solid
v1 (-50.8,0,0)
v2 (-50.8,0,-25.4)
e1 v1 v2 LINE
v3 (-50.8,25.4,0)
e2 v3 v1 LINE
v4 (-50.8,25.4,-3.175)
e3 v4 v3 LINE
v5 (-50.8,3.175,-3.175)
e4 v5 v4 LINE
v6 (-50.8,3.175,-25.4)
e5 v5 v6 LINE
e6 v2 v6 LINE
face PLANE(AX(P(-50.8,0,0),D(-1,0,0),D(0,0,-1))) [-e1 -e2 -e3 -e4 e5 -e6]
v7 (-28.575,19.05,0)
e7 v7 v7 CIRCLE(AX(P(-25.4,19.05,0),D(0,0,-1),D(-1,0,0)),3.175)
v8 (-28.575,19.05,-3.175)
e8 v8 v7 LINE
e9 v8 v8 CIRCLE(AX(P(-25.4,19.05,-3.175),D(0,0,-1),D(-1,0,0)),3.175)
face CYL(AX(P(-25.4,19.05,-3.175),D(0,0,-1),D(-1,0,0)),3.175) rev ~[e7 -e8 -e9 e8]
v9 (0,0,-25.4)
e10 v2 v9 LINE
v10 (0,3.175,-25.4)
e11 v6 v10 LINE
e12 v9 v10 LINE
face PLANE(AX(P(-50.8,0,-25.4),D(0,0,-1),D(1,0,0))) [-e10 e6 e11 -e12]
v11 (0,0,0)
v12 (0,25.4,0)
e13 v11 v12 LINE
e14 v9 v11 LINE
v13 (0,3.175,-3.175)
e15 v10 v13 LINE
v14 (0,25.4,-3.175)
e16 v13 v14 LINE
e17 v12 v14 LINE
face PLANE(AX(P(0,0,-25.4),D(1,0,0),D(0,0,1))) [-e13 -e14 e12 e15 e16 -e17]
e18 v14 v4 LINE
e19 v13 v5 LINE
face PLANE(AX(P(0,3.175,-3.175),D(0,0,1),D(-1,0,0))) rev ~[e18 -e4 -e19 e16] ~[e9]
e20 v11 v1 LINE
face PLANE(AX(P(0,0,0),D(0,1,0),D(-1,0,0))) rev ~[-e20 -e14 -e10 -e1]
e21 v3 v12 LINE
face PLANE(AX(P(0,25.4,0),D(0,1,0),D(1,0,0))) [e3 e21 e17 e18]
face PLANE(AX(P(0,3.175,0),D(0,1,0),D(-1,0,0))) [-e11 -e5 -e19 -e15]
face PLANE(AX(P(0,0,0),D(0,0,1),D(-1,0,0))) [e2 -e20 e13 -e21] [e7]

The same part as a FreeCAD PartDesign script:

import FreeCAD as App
import Part
import Sketcher

V = App.Vector
Q = App.Units.Quantity


def add_polygon(sketch, points):
    """Adds a closed chain of lines whose ends are joined by coincident constraints."""
    first, n = sketch.GeometryCount, len(points)
    for a, b in zip(points, points[1:] + points[:1]):
        sketch.addGeometry(Part.LineSegment(App.Vector(*a, 0), App.Vector(*b, 0)), False)
    for i in range(n):
        sketch.addConstraint(Sketcher.Constraint("Coincident", first + i, 2, first + (i + 1) % n, 1))

doc = App.newDocument("Part")
params = doc.addObject("Spreadsheet::Sheet", "Params")
for row, (alias, value) in enumerate([
    ("sketch1_width", "2 in"),
    ("sketch1_height", "1 in"),
    ("pad1_length", "0.125 in"),
    ("sketch2_width", "2 in"),
    ("sketch2_height", "0.125 in"),
    ("pad2_length", "0.875 in"),
    ("sketch3_diameter", "0.25 in"),
], start=1):
    params.set(f"A{row}", alias)
    params.set(f"B{row}", "=" + value)
    params.setAlias(f"B{row}", alias)

body = doc.addObject("PartDesign::Body", "Body")

# Sketch on XZ plane
sketch1 = body.newObject("Sketcher::SketchObject", "Sketch")
sketch1.AttachmentSupport = (doc.getObject("XZ_Plane"), [""])
sketch1.MapMode = "FlatFace"
add_polygon(sketch1, [(-51, 0), (0, 0), (0, -25), (-51, -25)])  # lines 0-3
sketch1.addConstraint(Sketcher.Constraint("Horizontal", 0))
sketch1.addConstraint(Sketcher.Constraint("Vertical", 1))
sketch1.addConstraint(Sketcher.Constraint("Horizontal", 2))
sketch1.addConstraint(Sketcher.Constraint("Vertical", 3))
sketch1.addConstraint(Sketcher.Constraint("Coincident", 0, 2, -1, 1))
sketch1.addConstraint(Sketcher.Constraint("DistanceX", 0, 1, 0, 2, Q("2 in")))
sketch1.addConstraint(Sketcher.Constraint("DistanceY", 1, 2, 1, 1, Q("1 in")))
sketch1.setExpression("Constraints[9]", "Params.sketch1_width")
sketch1.setExpression("Constraints[10]", "Params.sketch1_height")
pad1 = body.newObject("PartDesign::Pad", "Pad")
pad1.Profile = sketch1
pad1.setExpression("Length", "Params.pad1_length")
pad1.Reversed = True

# Sketch on XZ plane
sketch2 = body.newObject("Sketcher::SketchObject", "Sketch001")
sketch2.AttachmentSupport = (doc.getObject("XZ_Plane"), [""])
sketch2.MapMode = "FlatFace"
sketch2.AttachmentOffset = App.Placement(V(0, 0, -0.125 * 25.4), App.Rotation())
add_polygon(sketch2, [(-50.8, -3.2), (-50.8, 0), (0, 0), (0, -3.2)])  # lines 0-3
sketch2.addConstraint(Sketcher.Constraint("Vertical", 0))
sketch2.addConstraint(Sketcher.Constraint("Horizontal", 1))
sketch2.addConstraint(Sketcher.Constraint("Vertical", 2))
sketch2.addConstraint(Sketcher.Constraint("Horizontal", 3))
sketch2.addConstraint(Sketcher.Constraint("Coincident", 1, 2, -1, 1))
sketch2.addConstraint(Sketcher.Constraint("DistanceX", 1, 1, 1, 2, Q("2 in")))
sketch2.addConstraint(Sketcher.Constraint("DistanceY", 0, 1, 0, 2, Q("0.125 in")))
sketch2.setExpression("Constraints[9]", "Params.sketch2_width")
sketch2.setExpression("Constraints[10]", "Params.sketch2_height")
pad2 = body.newObject("PartDesign::Pad", "Pad001")
pad2.Profile = sketch2
pad2.setExpression("Length", "Params.pad2_length")
pad2.Reversed = True

# Sketch on XY plane
sketch3 = body.newObject("Sketcher::SketchObject", "Sketch002")
sketch3.AttachmentSupport = (doc.getObject("XY_Plane"), [""])
sketch3.MapMode = "FlatFace"
sketch3.AttachmentOffset = App.Placement(V(0, 0, -0.125 * 25.4), App.Rotation())
sketch3.addGeometry(Part.Circle(V(-25.4, 19.1, 0), V(0, 0, 1), 3.2), False)
sketch3.addConstraint(Sketcher.Constraint("Diameter", 0, Q("0.25 in")))
sketch3.addConstraint(Sketcher.Constraint("DistanceX", 0, 3, -1, 1, Q("1 in")))
sketch3.addConstraint(Sketcher.Constraint("DistanceY", -1, 1, 0, 3, Q("0.75 in")))
sketch3.setExpression("Constraints[0]", "Params.sketch3_diameter")
pocket1 = body.newObject("PartDesign::Pocket", "Pocket")
pocket1.Profile = sketch3
pocket1.Type = "ThroughAll"
pocket1.Reversed = True

doc.recompute()
